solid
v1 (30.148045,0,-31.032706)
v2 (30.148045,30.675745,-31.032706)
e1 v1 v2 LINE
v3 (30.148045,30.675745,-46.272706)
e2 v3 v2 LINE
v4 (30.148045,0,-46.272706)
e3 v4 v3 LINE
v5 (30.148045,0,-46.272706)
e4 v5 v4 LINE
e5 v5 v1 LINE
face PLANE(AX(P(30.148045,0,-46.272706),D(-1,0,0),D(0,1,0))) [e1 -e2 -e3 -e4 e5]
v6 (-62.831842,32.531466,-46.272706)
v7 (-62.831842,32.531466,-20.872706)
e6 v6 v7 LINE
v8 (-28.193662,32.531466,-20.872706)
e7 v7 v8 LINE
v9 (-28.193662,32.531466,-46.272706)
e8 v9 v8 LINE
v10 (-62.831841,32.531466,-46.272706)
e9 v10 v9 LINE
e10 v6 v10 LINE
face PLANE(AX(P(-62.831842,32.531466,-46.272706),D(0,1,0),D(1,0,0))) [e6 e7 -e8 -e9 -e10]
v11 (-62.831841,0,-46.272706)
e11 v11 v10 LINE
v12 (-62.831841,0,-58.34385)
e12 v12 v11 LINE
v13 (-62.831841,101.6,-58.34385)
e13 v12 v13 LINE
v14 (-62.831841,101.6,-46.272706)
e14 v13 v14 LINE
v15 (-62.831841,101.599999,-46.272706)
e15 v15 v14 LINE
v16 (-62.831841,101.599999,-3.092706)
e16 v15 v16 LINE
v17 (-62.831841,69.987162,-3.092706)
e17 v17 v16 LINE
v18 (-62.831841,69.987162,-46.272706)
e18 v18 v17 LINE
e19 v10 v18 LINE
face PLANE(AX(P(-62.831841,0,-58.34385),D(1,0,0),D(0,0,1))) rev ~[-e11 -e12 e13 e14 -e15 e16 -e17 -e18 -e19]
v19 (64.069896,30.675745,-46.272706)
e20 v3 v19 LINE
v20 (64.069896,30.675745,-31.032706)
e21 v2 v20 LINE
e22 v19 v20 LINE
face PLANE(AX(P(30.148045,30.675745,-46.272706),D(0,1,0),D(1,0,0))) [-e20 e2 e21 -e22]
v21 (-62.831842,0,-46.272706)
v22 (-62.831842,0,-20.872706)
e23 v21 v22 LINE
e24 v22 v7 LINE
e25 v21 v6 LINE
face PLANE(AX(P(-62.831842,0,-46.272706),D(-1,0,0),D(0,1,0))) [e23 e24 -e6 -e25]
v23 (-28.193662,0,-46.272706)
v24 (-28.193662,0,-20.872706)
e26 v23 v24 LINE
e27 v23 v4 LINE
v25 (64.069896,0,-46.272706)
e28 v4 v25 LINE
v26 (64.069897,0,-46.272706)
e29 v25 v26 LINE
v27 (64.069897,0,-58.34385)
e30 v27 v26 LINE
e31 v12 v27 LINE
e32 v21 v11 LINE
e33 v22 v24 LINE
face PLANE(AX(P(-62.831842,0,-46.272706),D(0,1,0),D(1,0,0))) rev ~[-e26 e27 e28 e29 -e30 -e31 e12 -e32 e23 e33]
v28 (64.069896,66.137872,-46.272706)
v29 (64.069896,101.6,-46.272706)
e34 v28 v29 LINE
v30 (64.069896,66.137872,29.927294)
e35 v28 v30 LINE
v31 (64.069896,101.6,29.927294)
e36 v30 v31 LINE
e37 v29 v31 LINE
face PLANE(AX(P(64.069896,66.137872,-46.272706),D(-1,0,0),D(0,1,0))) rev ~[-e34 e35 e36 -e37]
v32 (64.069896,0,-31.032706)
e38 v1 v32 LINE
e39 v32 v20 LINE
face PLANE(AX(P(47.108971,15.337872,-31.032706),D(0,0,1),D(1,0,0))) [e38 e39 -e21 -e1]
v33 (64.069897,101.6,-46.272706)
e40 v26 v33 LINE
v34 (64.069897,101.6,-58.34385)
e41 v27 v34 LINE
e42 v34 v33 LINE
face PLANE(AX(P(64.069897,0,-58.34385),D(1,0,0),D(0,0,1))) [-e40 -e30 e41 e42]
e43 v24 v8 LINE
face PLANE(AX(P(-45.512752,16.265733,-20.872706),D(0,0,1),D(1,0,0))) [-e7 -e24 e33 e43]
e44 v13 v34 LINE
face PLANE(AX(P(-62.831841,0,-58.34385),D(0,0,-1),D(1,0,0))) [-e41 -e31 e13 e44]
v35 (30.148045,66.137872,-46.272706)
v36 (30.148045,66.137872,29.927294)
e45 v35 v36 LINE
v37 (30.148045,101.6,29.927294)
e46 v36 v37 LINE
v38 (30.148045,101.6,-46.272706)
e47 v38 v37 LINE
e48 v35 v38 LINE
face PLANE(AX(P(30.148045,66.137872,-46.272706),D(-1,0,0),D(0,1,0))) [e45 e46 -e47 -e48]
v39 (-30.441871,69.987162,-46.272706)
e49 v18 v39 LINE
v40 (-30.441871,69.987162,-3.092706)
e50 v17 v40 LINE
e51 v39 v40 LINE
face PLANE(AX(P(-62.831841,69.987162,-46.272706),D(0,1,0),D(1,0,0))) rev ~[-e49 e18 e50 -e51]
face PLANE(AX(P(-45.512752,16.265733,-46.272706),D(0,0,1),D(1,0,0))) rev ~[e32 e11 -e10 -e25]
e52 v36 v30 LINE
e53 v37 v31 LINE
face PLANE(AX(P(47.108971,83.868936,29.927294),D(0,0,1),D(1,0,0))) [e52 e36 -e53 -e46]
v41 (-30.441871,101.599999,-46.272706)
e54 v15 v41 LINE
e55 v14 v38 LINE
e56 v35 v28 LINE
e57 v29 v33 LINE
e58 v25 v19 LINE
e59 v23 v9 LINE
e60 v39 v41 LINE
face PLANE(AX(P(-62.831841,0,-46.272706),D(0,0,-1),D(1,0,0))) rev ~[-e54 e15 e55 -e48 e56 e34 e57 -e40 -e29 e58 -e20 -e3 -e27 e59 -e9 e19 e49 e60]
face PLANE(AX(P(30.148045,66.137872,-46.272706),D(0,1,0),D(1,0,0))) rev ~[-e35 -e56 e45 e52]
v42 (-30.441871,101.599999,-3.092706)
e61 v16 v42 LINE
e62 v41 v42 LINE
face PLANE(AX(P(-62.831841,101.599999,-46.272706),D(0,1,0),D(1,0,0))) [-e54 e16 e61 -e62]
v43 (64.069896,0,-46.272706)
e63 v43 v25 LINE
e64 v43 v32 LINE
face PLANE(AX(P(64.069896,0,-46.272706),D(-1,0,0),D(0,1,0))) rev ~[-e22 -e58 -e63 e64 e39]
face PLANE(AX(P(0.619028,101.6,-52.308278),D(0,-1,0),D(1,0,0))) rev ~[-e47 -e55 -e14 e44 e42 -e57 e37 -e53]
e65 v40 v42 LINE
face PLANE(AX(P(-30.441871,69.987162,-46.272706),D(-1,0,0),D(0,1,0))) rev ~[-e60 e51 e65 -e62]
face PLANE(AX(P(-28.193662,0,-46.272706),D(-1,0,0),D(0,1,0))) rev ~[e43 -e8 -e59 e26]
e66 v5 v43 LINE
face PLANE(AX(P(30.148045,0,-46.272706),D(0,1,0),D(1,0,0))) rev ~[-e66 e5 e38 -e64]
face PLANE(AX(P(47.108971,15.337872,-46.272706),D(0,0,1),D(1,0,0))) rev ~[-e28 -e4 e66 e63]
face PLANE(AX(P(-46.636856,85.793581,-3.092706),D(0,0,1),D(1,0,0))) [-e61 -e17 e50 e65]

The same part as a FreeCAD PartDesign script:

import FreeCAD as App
import Part
import Sketcher
from FreeCAD import Vector
Q = App.Units.Quantity

doc = App.newDocument("Part")
body = doc.addObject("PartDesign::Body", "Body")

# Sketch on XZ plane
sketch1 = doc.addObject("Sketcher::SketchObject", "Sketch")
body.addObject(sketch1)
sketch1.AttachmentSupport = (doc.XZ_Plane, [""])
sketch1.MapMode = "FlatFace"
sketch1.addGeometry(Part.LineSegment(Vector(-63, -46, 0), Vector(-63, -58, 0)), False)
sketch1.addGeometry(Part.LineSegment(Vector(-63, -58, 0), Vector(64, -58, 0)), False)
sketch1.addGeometry(Part.LineSegment(Vector(64, -58, 0), Vector(64, -46, 0)), False)
sketch1.addGeometry(Part.LineSegment(Vector(64, -46, 0), Vector(-63, -46, 0)), False)
sketch1.addConstraint(Sketcher.Constraint("Coincident", 0, 2, 1, 1))
sketch1.addConstraint(Sketcher.Constraint("Coincident", 1, 2, 2, 1))
sketch1.addConstraint(Sketcher.Constraint("Coincident", 2, 2, 3, 1))
sketch1.addConstraint(Sketcher.Constraint("Coincident", 3, 2, 0, 1))
sketch1.addConstraint(Sketcher.Constraint("Vertical", 0))
sketch1.addConstraint(Sketcher.Constraint("Horizontal", 1))
sketch1.addConstraint(Sketcher.Constraint("Vertical", 2))
sketch1.addConstraint(Sketcher.Constraint("Horizontal", 3))
sketch1.addConstraint(Sketcher.Constraint("DistanceX", 1, 1, 1, 2, 126.901738))
sketch1.addConstraint(Sketcher.Constraint("DistanceY", 0, 2, 0, 1, 12.071144))
sketch1.addConstraint(Sketcher.Constraint("DistanceX", 0, 2, -1, 1, 62.831841))
sketch1.addConstraint(Sketcher.Constraint("DistanceY", 0, 2, -1, 1, 58.34385))
pad1 = doc.addObject("PartDesign::Pad", "Pad")
body.addObject(pad1)
pad1.Profile = sketch1
pad1.Length = Q("4 in")
pad1.Reversed = True

# Sketch on XY plane
sketch2 = doc.addObject("Sketcher::SketchObject", "Sketch001")
body.addObject(sketch2)
sketch2.AttachmentSupport = (doc.XY_Plane, [""])
sketch2.MapMode = "FlatFace"
sketch2.AttachmentOffset = App.Placement(Vector(0, 0, -46.272706), App.Rotation())
sketch2.addGeometry(Part.LineSegment(Vector(30, 31, 0), Vector(30, 0, 0)), False)
sketch2.addGeometry(Part.LineSegment(Vector(30, 0, 0), Vector(64, 0, 0)), False)
sketch2.addGeometry(Part.LineSegment(Vector(64, 0, 0), Vector(64, 31, 0)), False)
sketch2.addGeometry(Part.LineSegment(Vector(64, 31, 0), Vector(30, 31, 0)), False)
sketch2.addConstraint(Sketcher.Constraint("Coincident", 0, 2, 1, 1))
sketch2.addConstraint(Sketcher.Constraint("Coincident", 1, 2, 2, 1))
sketch2.addConstraint(Sketcher.Constraint("Coincident", 2, 2, 3, 1))
sketch2.addConstraint(Sketcher.Constraint("Coincident", 3, 2, 0, 1))
sketch2.addConstraint(Sketcher.Constraint("Vertical", 0))
sketch2.addConstraint(Sketcher.Constraint("Horizontal", 1))
sketch2.addConstraint(Sketcher.Constraint("Vertical", 2))
sketch2.addConstraint(Sketcher.Constraint("Horizontal", 3))
sketch2.addConstraint(Sketcher.Constraint("PointOnObject", 0, 2, -1))
sketch2.addConstraint(Sketcher.Constraint("DistanceX", 1, 1, 1, 2, 33.921851))
sketch2.addConstraint(Sketcher.Constraint("DistanceY", 0, 2, 0, 1, 30.675745))
sketch2.addConstraint(Sketcher.Constraint("DistanceX", -1, 1, 0, 2, 30.148045))
pad2 = doc.addObject("PartDesign::Pad", "Pad001")
body.addObject(pad2)
pad2.Profile = sketch2
pad2.Length = Q("0.6 in")

# Sketch on XY plane
sketch3 = doc.addObject("Sketcher::SketchObject", "Sketch002")
body.addObject(sketch3)
sketch3.AttachmentSupport = (doc.XY_Plane, [""])
sketch3.MapMode = "FlatFace"
sketch3.AttachmentOffset = App.Placement(Vector(0, 0, -46.272706), App.Rotation())
sketch3.addGeometry(Part.LineSegment(Vector(-63, 33, 0), Vector(-63, 0, 0)), False)
sketch3.addGeometry(Part.LineSegment(Vector(-63, 0, 0), Vector(-28, 0, 0)), False)
sketch3.addGeometry(Part.LineSegment(Vector(-28, 0, 0), Vector(-28, 33, 0)), False)
sketch3.addGeometry(Part.LineSegment(Vector(-28, 33, 0), Vector(-63, 33, 0)), False)
sketch3.addConstraint(Sketcher.Constraint("Coincident", 0, 2, 1, 1))
sketch3.addConstraint(Sketcher.Constraint("Coincident", 1, 2, 2, 1))
sketch3.addConstraint(Sketcher.Constraint("Coincident", 2, 2, 3, 1))
sketch3.addConstraint(Sketcher.Constraint("Coincident", 3, 2, 0, 1))
sketch3.addConstraint(Sketcher.Constraint("Vertical", 0))
sketch3.addConstraint(Sketcher.Constraint("Horizontal", 1))
sketch3.addConstraint(Sketcher.Constraint("Vertical", 2))
sketch3.addConstraint(Sketcher.Constraint("Horizontal", 3))
sketch3.addConstraint(Sketcher.Constraint("PointOnObject", 0, 2, -1))
sketch3.addConstraint(Sketcher.Constraint("DistanceX", 1, 1, 1, 2, 34.638179))
sketch3.addConstraint(Sketcher.Constraint("DistanceY", 0, 2, 0, 1, 32.531466))
sketch3.addConstraint(Sketcher.Constraint("DistanceX", 0, 2, -1, 1, 62.831842))
pad3 = doc.addObject("PartDesign::Pad", "Pad002")
body.addObject(pad3)
pad3.Profile = sketch3
pad3.Length = Q("1 in")

# Sketch on XY plane
sketch4 = doc.addObject("Sketcher::SketchObject", "Sketch003")
body.addObject(sketch4)
sketch4.AttachmentSupport = (doc.XY_Plane, [""])
sketch4.MapMode = "FlatFace"
sketch4.AttachmentOffset = App.Placement(Vector(0, 0, -46.272706), App.Rotation())
sketch4.addGeometry(Part.LineSegment(Vector(-63, 102, 0), Vector(-63, 70, 0)), False)
sketch4.addGeometry(Part.LineSegment(Vector(-63, 70, 0), Vector(-30, 70, 0)), False)
sketch4.addGeometry(Part.LineSegment(Vector(-30, 70, 0), Vector(-30, 102, 0)), False)
sketch4.addGeometry(Part.LineSegment(Vector(-30, 102, 0), Vector(-63, 102, 0)), False)
sketch4.addConstraint(Sketcher.Constraint("Coincident", 0, 2, 1, 1))
sketch4.addConstraint(Sketcher.Constraint("Coincident", 1, 2, 2, 1))
sketch4.addConstraint(Sketcher.Constraint("Coincident", 2, 2, 3, 1))
sketch4.addConstraint(Sketcher.Constraint("Coincident", 3, 2, 0, 1))
sketch4.addConstraint(Sketcher.Constraint("Vertical", 0))
sketch4.addConstraint(Sketcher.Constraint("Horizontal", 1))
sketch4.addConstraint(Sketcher.Constraint("Vertical", 2))
sketch4.addConstraint(Sketcher.Constraint("Horizontal", 3))
sketch4.addConstraint(Sketcher.Constraint("DistanceY", -1, 1, 2, 2, Q("4 in")))
sketch4.addConstraint(Sketcher.Constraint("DistanceY", 0, 2, 0, 1, Q("1.2445999 in")))
sketch4.addConstraint(Sketcher.Constraint("DistanceX", 1, 1, 1, 2, 32.38997))
sketch4.addConstraint(Sketcher.Constraint("DistanceX", 0, 2, -1, 1, 62.831841))
pad4 = doc.addObject("PartDesign::Pad", "Pad003")
body.addObject(pad4)
pad4.Profile = sketch4
pad4.Length = Q("1.7 in")

# Sketch on XY plane
sketch5 = doc.addObject("Sketcher::SketchObject", "Sketch004")
body.addObject(sketch5)
sketch5.AttachmentSupport = (doc.XY_Plane, [""])
sketch5.MapMode = "FlatFace"
sketch5.AttachmentOffset = App.Placement(Vector(0, 0, -46.272706), App.Rotation())
sketch5.addGeometry(Part.LineSegment(Vector(30, 102, 0), Vector(30, 66, 0)), False)
sketch5.addGeometry(Part.LineSegment(Vector(30, 66, 0), Vector(64, 66, 0)), False)
sketch5.addGeometry(Part.LineSegment(Vector(64, 66, 0), Vector(64, 102, 0)), False)
sketch5.addGeometry(Part.LineSegment(Vector(64, 102, 0), Vector(30, 102, 0)), False)
sketch5.addConstraint(Sketcher.Constraint("Coincident", 0, 2, 1, 1))
sketch5.addConstraint(Sketcher.Constraint("Coincident", 1, 2, 2, 1))
sketch5.addConstraint(Sketcher.Constraint("Coincident", 2, 2, 3, 1))
sketch5.addConstraint(Sketcher.Constraint("Coincident", 3, 2, 0, 1))
sketch5.addConstraint(Sketcher.Constraint("Vertical", 0))
sketch5.addConstraint(Sketcher.Constraint("Horizontal", 1))
sketch5.addConstraint(Sketcher.Constraint("Vertical", 2))
sketch5.addConstraint(Sketcher.Constraint("Horizontal", 3))
sketch5.addConstraint(Sketcher.Constraint("DistanceY", -1, 1, 2, 2, Q("4 in")))
sketch5.addConstraint(Sketcher.Constraint("DistanceX", 1, 1, 1, 2, 33.921851))
sketch5.addConstraint(Sketcher.Constraint("DistanceY", 0, 2, 0, 1, 35.462128))
sketch5.addConstraint(Sketcher.Constraint("DistanceX", -1, 1, 0, 2, 30.148045))
pad5 = doc.addObject("PartDesign::Pad", "Pad004")
body.addObject(pad5)
pad5.Profile = sketch5
pad5.Length = Q("3 in")

doc.recompute()
